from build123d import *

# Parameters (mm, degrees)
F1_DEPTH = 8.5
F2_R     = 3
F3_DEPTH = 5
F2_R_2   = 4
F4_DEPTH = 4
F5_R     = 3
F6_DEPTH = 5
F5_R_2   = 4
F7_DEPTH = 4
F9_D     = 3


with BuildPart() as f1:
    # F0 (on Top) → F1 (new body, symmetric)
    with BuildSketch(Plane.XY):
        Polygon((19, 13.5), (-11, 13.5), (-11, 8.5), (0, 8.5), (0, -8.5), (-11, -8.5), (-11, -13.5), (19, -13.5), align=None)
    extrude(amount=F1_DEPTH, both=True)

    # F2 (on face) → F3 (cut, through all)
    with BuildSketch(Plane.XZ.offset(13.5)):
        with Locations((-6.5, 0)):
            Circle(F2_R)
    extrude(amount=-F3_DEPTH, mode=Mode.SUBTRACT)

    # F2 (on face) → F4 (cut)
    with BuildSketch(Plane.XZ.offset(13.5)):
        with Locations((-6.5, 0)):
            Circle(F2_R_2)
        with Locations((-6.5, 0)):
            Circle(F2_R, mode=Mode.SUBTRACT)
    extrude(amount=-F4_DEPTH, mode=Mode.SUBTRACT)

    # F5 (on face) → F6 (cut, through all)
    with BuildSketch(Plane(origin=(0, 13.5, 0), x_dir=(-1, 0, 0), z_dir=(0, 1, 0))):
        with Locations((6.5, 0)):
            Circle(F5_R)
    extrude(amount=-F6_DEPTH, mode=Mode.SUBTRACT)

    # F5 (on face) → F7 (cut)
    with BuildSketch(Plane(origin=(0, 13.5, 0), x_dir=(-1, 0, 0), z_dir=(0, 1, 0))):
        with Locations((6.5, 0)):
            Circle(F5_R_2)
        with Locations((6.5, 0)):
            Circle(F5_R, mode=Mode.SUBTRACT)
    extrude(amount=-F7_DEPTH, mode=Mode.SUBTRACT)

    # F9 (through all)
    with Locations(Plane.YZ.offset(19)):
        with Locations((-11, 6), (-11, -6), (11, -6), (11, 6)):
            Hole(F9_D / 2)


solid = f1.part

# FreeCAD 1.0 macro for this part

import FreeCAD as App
import Part
import Sketcher

V = App.Vector

doc = App.newDocument("Part")
body = doc.addObject("PartDesign::Body", "Body")

sketch1 = body.newObject("Sketcher::SketchObject", "Sketch")
sketch1.AttachmentSupport = (doc.getObject("XY_Plane"), [""])
sketch1.MapMode = "FlatFace"
sketch1.addGeometry([
    Part.LineSegment(V(19, 14, 0), V(-11, 14, 0)),
    Part.LineSegment(V(-11, 14, 0), V(-11, 8, 0)),
    Part.LineSegment(V(-11, 8, 0), V(0, 8, 0)),
    Part.LineSegment(V(0, 8, 0), V(0, -8, 0)),
    Part.LineSegment(V(0, -8, 0), V(-11, -8, 0)),
    Part.LineSegment(V(-11, -8, 0), V(-11, -14, 0)),
    Part.LineSegment(V(-11, -14, 0), V(19, -14, 0)),
    Part.LineSegment(V(19, -14, 0), V(19, 14, 0)),
], False)
sketch1.addConstraint([
    Sketcher.Constraint("Coincident", 0, 2, 1, 1),
    Sketcher.Constraint("Coincident", 1, 2, 2, 1),
    Sketcher.Constraint("Coincident", 2, 2, 3, 1),
    Sketcher.Constraint("Coincident", 3, 2, 4, 1),
    Sketcher.Constraint("Coincident", 4, 2, 5, 1),
    Sketcher.Constraint("Coincident", 5, 2, 6, 1),
    Sketcher.Constraint("Coincident", 6, 2, 7, 1),
    Sketcher.Constraint("Coincident", 7, 2, 0, 1),
    Sketcher.Constraint("Horizontal", 0),
    Sketcher.Constraint("Vertical", 1),
    Sketcher.Constraint("Horizontal", 2),
    Sketcher.Constraint("Vertical", 3),
    Sketcher.Constraint("Horizontal", 4),
    Sketcher.Constraint("Vertical", 5),
    Sketcher.Constraint("Horizontal", 6),
    Sketcher.Constraint("Vertical", 7),
    Sketcher.Constraint("Symmetric", 2, 2, 3, 2, -1, 1),
    Sketcher.Constraint("Symmetric", 0, 2, 5, 2, -1),
    Sketcher.Constraint("DistanceX", 0, 2, 0, 1, 30.0),
    Sketcher.Constraint("DistanceX", 2, 1, 2, 2, 11.0),
    Sketcher.Constraint("DistanceY", 1, 2, 1, 1, 5.0),
    Sketcher.Constraint("DistanceY", 3, 2, 3, 1, 17.0),
])
pad1 = body.newObject("PartDesign::Pad", "Pad")
pad1.Profile = sketch1
pad1.Length = 17
pad1.Midplane = True

sketch2 = body.newObject("Sketcher::SketchObject", "Sketch001")
sketch2.AttachmentSupport = (doc.getObject("XZ_Plane"), [""])
sketch2.MapMode = "FlatFace"
sketch2.AttachmentOffset = App.Placement(V(0, 0, 13.5), App.Rotation())
sketch2.addGeometry(Part.Circle(V(-6.5, 0, 0), V(0, 0, 1), 3), False)
sketch2.addConstraint([
    Sketcher.Constraint("PointOnObject", 0, 3, -1),
    Sketcher.Constraint("Diameter", 0, 6.0),
    Sketcher.Constraint("DistanceX", 0, 3, -1, 1, 6.5),
])
pocket1 = body.newObject("PartDesign::Pocket", "Pocket")
pocket1.Profile = sketch2
pocket1.Length = 5

sketch3 = body.newObject("Sketcher::SketchObject", "Sketch002")
sketch3.AttachmentSupport = (doc.getObject("XZ_Plane"), [""])
sketch3.MapMode = "FlatFace"
sketch3.AttachmentOffset = App.Placement(V(0, 0, 13.5), App.Rotation())
sketch3.addGeometry([
    Part.Circle(V(-6.5, 0, 0), V(0, 0, 1), 4),
    Part.Circle(V(-6.5, 0, 0), V(0, 0, 1), 3),
], False)
sketch3.addConstraint([
    Sketcher.Constraint("Coincident", 1, 3, 0, 3),
    Sketcher.Constraint("PointOnObject", 0, 3, -1),
    Sketcher.Constraint("Diameter", 0, 8.0),
    Sketcher.Constraint("Diameter", 1, 6.0),
    Sketcher.Constraint("DistanceX", 0, 3, -1, 1, 6.5),
])
pocket2 = body.newObject("PartDesign::Pocket", "Pocket001")
pocket2.Profile = sketch3
pocket2.Length = 4

sketch4 = body.newObject("Sketcher::SketchObject", "Sketch003")
sketch4.AttachmentSupport = (doc.getObject("XZ_Plane"), [""])
sketch4.MapMode = "FlatFace"
sketch4.AttachmentOffset = App.Placement(V(0, 0, -13.5), App.Rotation())
sketch4.addGeometry(Part.Circle(V(-6.5, 0, 0), V(0, 0, 1), 3), False)
sketch4.addConstraint([
    Sketcher.Constraint("PointOnObject", 0, 3, -1),
    Sketcher.Constraint("Diameter", 0, 6.0),
    Sketcher.Constraint("DistanceX", 0, 3, -1, 1, 6.5),
])
pocket3 = body.newObject("PartDesign::Pocket", "Pocket002")
pocket3.Profile = sketch4
pocket3.Type = "ThroughAll"
pocket3.Reversed = True

sketch5 = body.newObject("Sketcher::SketchObject", "Sketch004")
sketch5.AttachmentSupport = (doc.getObject("XZ_Plane"), [""])
sketch5.MapMode = "FlatFace"
sketch5.AttachmentOffset = App.Placement(V(0, 0, -13.5), App.Rotation())
sketch5.addGeometry([
    Part.Circle(V(-6.5, 0, 0), V(0, 0, 1), 4),
    Part.Circle(V(-6.5, 0, 0), V(0, 0, 1), 3),
], False)
sketch5.addConstraint([
    Sketcher.Constraint("Coincident", 1, 3, 0, 3),
    Sketcher.Constraint("PointOnObject", 0, 3, -1),
    Sketcher.Constraint("Diameter", 0, 8.0),
    Sketcher.Constraint("Diameter", 1, 6.0),
    Sketcher.Constraint("DistanceX", 0, 3, -1, 1, 6.5),
])
pocket4 = body.newObject("PartDesign::Pocket", "Pocket003")
pocket4.Profile = sketch5
pocket4.Length = 4
pocket4.Reversed = True

sketch6 = body.newObject("Sketcher::SketchObject", "Sketch005")
sketch6.AttachmentSupport = (doc.getObject("YZ_Plane"), [""])
sketch6.MapMode = "FlatFace"
sketch6.AttachmentOffset = App.Placement(V(0, 0, 19), App.Rotation())
sketch6.addGeometry([
    Part.Circle(V(-11, 6, 0), V(0, 0, 1), 1.5),
    Part.Circle(V(-11, -6, 0), V(0, 0, 1), 1.5),
    Part.Circle(V(11, -6, 0), V(0, 0, 1), 1.5),
    Part.Circle(V(11, 6, 0), V(0, 0, 1), 1.5),
], False)
sketch6.addConstraint([
    Sketcher.Constraint("Equal", 0, 1),
    Sketcher.Constraint("Equal", 1, 2),
    Sketcher.Constraint("Equal", 2, 3),
    Sketcher.Constraint("Symmetric", 0, 3, 2, 3, -1, 1),
    Sketcher.Constraint("Symmetric", 1, 3, 3, 3, -1, 1),
    Sketcher.Constraint("Symmetric", 1, 3, 2, 3, -2),
    Sketcher.Constraint("Diameter", 0, 3.0),
    Sketcher.Constraint("DistanceX", 0, 3, -1, 1, 11.0),
    Sketcher.Constraint("DistanceY", -1, 1, 0, 3, 6.0),
])
doc.recompute()
hole = body.newObject("PartDesign::Hole", "Hole")
hole.Profile = sketch6
hole.ThreadType = "None"
hole.Diameter = 3
hole.DepthType = "ThroughAll"

doc.recompute()
